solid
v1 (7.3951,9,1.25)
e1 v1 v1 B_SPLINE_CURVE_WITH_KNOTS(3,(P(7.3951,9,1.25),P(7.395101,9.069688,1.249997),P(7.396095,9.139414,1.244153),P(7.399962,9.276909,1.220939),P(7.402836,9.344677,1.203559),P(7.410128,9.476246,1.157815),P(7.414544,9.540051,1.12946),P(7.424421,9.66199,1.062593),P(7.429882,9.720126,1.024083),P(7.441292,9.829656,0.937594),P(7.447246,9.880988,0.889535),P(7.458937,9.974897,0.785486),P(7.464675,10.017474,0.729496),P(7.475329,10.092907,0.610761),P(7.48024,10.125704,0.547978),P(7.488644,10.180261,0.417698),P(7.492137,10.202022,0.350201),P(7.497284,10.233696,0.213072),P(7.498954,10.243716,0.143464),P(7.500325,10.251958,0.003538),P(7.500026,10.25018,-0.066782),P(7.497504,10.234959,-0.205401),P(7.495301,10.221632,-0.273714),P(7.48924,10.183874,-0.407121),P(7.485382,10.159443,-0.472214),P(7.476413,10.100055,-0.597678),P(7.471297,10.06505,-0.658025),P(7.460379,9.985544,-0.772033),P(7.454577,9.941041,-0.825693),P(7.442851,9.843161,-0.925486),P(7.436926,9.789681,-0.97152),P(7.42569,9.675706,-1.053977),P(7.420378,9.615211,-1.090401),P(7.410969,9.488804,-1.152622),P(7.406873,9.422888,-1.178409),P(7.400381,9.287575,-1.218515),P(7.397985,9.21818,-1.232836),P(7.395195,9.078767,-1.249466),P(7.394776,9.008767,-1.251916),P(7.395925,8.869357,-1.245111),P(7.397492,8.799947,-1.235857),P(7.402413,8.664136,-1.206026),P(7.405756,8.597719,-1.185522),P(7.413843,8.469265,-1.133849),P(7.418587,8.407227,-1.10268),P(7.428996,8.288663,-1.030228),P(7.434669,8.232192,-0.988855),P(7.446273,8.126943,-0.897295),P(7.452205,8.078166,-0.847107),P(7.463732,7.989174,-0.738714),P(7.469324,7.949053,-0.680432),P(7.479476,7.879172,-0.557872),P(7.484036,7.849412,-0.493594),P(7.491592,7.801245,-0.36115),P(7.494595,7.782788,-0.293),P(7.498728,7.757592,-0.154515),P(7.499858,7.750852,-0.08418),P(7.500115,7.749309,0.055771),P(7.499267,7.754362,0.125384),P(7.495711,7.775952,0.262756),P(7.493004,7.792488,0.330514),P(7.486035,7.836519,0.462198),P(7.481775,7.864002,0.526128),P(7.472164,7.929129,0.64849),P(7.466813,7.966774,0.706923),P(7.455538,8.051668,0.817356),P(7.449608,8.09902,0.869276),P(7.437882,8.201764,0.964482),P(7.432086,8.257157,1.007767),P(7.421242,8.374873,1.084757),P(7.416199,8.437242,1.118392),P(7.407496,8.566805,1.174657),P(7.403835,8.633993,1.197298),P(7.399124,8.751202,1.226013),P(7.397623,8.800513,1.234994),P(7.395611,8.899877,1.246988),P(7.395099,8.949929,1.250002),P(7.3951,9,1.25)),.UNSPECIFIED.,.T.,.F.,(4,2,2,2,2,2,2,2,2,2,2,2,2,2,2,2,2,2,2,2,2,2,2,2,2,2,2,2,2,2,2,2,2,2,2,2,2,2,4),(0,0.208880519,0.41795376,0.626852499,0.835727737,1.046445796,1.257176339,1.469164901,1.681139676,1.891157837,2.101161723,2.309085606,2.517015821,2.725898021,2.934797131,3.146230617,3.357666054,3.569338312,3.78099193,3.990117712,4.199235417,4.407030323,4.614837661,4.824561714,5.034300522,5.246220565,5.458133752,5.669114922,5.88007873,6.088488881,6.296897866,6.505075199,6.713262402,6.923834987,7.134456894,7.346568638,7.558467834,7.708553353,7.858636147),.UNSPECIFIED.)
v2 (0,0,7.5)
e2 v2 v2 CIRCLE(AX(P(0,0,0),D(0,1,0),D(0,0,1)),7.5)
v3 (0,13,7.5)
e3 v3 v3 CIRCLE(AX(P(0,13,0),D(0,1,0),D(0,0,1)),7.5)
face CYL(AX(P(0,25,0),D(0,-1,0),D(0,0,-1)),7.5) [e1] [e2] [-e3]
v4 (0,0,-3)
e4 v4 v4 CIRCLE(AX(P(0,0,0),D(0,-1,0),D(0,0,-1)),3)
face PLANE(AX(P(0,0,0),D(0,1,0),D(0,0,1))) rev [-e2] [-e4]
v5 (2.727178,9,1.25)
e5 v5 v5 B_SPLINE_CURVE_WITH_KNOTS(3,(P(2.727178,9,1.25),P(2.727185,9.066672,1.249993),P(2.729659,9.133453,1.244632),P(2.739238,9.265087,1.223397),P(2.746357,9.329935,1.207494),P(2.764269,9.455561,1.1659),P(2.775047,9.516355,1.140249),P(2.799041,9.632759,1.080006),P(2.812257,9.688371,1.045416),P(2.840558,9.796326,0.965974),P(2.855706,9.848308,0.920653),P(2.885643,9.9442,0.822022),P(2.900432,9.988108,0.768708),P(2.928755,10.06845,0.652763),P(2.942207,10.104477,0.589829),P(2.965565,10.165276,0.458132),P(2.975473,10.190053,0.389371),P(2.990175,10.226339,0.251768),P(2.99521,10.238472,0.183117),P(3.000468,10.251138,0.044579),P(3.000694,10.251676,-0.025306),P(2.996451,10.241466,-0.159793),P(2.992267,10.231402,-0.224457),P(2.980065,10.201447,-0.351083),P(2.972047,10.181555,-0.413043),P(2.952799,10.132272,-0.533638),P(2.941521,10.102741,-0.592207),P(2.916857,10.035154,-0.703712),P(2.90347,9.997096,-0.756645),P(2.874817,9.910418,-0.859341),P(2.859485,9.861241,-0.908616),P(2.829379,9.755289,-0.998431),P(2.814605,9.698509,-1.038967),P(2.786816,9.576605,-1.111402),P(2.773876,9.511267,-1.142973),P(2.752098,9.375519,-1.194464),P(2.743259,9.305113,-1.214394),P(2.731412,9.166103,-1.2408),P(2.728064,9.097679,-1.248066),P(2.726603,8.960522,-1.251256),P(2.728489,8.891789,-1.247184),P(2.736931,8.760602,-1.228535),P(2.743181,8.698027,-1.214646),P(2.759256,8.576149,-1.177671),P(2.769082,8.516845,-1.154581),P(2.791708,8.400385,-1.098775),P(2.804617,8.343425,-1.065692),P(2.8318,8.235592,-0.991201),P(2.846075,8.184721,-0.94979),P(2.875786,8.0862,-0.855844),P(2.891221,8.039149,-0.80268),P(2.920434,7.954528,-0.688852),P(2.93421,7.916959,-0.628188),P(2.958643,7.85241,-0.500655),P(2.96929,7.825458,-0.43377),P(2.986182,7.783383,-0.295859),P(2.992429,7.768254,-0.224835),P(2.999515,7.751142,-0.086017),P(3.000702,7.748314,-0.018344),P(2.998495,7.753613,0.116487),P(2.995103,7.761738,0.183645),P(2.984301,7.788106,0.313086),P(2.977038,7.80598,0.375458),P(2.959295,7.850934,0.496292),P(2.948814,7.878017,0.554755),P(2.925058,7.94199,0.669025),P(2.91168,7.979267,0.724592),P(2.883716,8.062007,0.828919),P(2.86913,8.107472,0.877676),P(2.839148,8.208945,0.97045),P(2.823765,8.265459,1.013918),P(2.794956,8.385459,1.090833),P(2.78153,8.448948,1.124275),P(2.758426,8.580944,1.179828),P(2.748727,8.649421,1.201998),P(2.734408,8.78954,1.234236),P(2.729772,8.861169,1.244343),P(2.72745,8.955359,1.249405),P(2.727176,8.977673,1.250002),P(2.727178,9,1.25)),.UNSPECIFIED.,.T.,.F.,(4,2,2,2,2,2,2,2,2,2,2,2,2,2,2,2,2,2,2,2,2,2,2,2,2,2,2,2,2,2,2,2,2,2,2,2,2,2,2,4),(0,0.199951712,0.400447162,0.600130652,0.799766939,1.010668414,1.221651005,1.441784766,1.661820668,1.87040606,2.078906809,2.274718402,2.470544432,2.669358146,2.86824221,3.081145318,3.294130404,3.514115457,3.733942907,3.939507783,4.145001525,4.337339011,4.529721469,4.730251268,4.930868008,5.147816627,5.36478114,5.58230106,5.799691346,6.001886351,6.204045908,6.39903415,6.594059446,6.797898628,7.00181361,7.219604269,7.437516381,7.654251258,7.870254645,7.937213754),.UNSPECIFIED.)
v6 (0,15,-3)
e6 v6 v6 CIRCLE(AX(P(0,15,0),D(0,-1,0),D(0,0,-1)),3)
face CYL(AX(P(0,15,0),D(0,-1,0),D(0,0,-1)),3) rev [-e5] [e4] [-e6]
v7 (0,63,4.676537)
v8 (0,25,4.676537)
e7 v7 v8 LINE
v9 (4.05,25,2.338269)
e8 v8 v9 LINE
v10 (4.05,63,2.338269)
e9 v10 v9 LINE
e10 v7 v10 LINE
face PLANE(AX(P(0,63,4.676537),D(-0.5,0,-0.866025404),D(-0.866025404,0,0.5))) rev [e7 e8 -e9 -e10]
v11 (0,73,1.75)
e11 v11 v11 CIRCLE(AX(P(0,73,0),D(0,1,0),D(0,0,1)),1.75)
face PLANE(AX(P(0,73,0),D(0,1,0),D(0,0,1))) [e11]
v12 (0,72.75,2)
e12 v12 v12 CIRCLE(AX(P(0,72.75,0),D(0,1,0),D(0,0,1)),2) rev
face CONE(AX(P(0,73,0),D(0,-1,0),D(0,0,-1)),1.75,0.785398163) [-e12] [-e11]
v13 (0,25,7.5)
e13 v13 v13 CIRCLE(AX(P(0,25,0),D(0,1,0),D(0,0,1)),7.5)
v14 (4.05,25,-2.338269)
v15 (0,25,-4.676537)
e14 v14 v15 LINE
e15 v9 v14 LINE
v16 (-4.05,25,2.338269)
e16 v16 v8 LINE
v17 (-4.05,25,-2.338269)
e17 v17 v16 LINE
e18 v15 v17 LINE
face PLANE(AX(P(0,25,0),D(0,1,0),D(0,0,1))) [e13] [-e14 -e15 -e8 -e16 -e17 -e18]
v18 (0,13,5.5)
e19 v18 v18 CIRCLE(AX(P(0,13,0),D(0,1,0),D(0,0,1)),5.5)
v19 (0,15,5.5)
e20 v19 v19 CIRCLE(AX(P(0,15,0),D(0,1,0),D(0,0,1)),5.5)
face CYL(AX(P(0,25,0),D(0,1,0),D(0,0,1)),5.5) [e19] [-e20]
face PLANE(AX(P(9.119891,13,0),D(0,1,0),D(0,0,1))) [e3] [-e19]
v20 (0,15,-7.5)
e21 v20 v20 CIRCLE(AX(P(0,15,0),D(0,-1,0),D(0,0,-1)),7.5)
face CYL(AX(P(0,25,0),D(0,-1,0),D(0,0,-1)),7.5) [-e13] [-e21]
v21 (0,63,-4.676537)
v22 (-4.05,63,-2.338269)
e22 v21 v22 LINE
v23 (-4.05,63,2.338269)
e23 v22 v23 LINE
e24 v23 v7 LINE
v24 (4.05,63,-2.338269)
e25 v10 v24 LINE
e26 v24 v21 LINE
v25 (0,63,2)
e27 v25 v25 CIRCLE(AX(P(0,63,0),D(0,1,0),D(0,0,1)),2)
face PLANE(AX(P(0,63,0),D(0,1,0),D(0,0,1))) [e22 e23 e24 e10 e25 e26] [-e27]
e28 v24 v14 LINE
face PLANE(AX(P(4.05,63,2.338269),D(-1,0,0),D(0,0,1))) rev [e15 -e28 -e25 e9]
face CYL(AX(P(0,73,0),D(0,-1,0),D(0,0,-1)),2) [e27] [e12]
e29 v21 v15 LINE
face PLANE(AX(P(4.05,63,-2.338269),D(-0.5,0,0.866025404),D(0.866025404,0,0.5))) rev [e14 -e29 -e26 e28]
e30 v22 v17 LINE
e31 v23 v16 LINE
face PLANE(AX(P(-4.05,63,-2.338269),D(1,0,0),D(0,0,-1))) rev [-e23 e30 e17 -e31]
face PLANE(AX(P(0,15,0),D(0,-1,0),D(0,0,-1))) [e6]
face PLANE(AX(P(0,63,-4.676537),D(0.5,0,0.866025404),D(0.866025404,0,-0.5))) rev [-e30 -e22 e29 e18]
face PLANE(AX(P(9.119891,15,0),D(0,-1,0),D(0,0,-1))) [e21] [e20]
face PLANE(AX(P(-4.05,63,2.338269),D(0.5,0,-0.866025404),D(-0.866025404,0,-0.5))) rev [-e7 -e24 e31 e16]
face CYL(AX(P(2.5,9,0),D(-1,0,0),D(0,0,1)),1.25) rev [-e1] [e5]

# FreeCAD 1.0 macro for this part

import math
import FreeCAD as App
import Part
import Sketcher
Q = App.Units.Quantity


def edges_at(feature, points):
    """Names of the edges that pass closest to the given points."""
    edges = feature.Shape.Edges
    near = lambda p: min(range(len(edges)), key=lambda i: edges[i].distToShape(Part.Vertex(*p))[0])
    return sorted({f"Edge{near(p) + 1}" for p in points})

doc = App.newDocument("Part")
body = doc.addObject("PartDesign::Body", "Body")

sketch1 = body.newObject("Sketcher::SketchObject", "Sketch")
sketch1.AttachmentSupport = (doc.getObject("XZ_Plane"), [""])
sketch1.MapMode = "FlatFace"
sketch1.addGeometry(Part.Circle(App.Vector(0, 0, 0), App.Vector(0, 0, 1), 8), False)
sketch1.addConstraint([
    Sketcher.Constraint("Coincident", 0, 3, -1, 1),
    Sketcher.Constraint("Diameter", 0, Q("15 mm")),
])
pad1 = body.newObject("PartDesign::Pad", "Pad")
pad1.Profile = sketch1
pad1.Length = 25
pad1.Reversed = True

sketch2 = body.newObject("Sketcher::SketchObject", "Sketch001")
sketch2.AttachmentSupport = (doc.getObject("XZ_Plane"), [""])
sketch2.MapMode = "FlatFace"
sketch2.AttachmentOffset = App.Placement(App.Vector(0, 0, -25), App.Rotation())
sketch2.addGeometry([
    Part.LineSegment(App.Vector(0, 4.7, 0), App.Vector(4, 2.3, 0)),
    Part.LineSegment(App.Vector(4, 2.3, 0), App.Vector(4, -2.3, 0)),
    Part.LineSegment(App.Vector(4, -2.3, 0), App.Vector(0, -4.7, 0)),
    Part.LineSegment(App.Vector(0, -4.7, 0), App.Vector(-4, -2.3, 0)),
    Part.LineSegment(App.Vector(-4, -2.3, 0), App.Vector(-4, 2.3, 0)),
    Part.LineSegment(App.Vector(-4, 2.3, 0), App.Vector(0, 4.7, 0)),
], False)
sketch2.addConstraint([
    Sketcher.Constraint("Coincident", 0, 2, 1, 1),
    Sketcher.Constraint("Coincident", 1, 2, 2, 1),
    Sketcher.Constraint("Coincident", 2, 2, 3, 1),
    Sketcher.Constraint("Coincident", 3, 2, 4, 1),
    Sketcher.Constraint("Coincident", 4, 2, 5, 1),
    Sketcher.Constraint("Coincident", 5, 2, 0, 1),
    Sketcher.Constraint("Vertical", 1),
    Sketcher.Constraint("Vertical", 4),
    Sketcher.Constraint("Symmetric", 0, 2, 3, 2, -1, 1),
    Sketcher.Constraint("Symmetric", 2, 2, 5, 2, -1, 1),
    Sketcher.Constraint("PointOnObject", 2, 2, -2),
    Sketcher.Constraint("Parallel", 2, 5),
    Sketcher.Constraint("Horizontal", 1, 2, 3, 2),
    Sketcher.Constraint("Angle", 0, Q("-29.999994 deg")),
    Sketcher.Constraint("DistanceX", 3, 2, 1, 2, Q("8.1 mm")),
    Sketcher.Constraint("DistanceY", 1, 2, 1, 1, Q("4.676538 mm")),
])
pad2 = body.newObject("PartDesign::Pad", "Pad001")
pad2.Profile = sketch2
pad2.Length = 38
pad2.Reversed = True

sketch3 = body.newObject("Sketcher::SketchObject", "Sketch002")
sketch3.AttachmentSupport = (doc.getObject("XZ_Plane"), [""])
sketch3.MapMode = "FlatFace"
sketch3.addGeometry([
    Part.LineSegment(App.Vector(2.5, -1.7, 0), App.Vector(2.5, 1.7, 0)),
    Part.ArcOfCircle(Part.Circle(App.Vector(0, 0, 0), App.Vector(0, 0, 1), 3), math.radians(34), math.radians(326)),
], False)
sketch3.addConstraint([
    Sketcher.Constraint("Coincident", 0, 1, 1, 2),
    Sketcher.Constraint("Coincident", 1, 1, 0, 2),
    Sketcher.Constraint("Vertical", 0),
    Sketcher.Constraint("Coincident", 1, 3, -1, 1),
    Sketcher.Constraint("Radius", 1, Q("3 mm")),
    Sketcher.Constraint("DistanceX", -1, 1, 0, 1, Q("2.5 mm")),
])
pocket1 = body.newObject("PartDesign::Pocket", "Pocket")
pocket1.Profile = sketch3
pocket1.Length = 15

sketch4 = body.newObject("Sketcher::SketchObject", "Sketch003")
sketch4.AttachmentSupport = (doc.getObject("XZ_Plane"), [""])
sketch4.MapMode = "FlatFace"
sketch4.addGeometry(Part.Circle(App.Vector(0, 0, 0), App.Vector(0, 0, 1), 3), False)
sketch4.addConstraint([
    Sketcher.Constraint("Coincident", 0, 3, -1, 1),
    Sketcher.Constraint("Diameter", 0, Q("6 mm")),
])
pocket2 = body.newObject("PartDesign::Pocket", "Pocket001")
pocket2.Profile = sketch4
pocket2.Length = 3

sketch5 = body.newObject("Sketcher::SketchObject", "Sketch004")
sketch5.AttachmentSupport = (doc.getObject("YZ_Plane"), [""])
sketch5.MapMode = "FlatFace"
sketch5.AttachmentOffset = App.Placement(App.Vector(0, 0, 2.5), App.Rotation())
sketch5.addGeometry(Part.Circle(App.Vector(9, 0, 0), App.Vector(0, 0, 1), 1.2), False)
sketch5.addConstraint([
    Sketcher.Constraint("PointOnObject", 0, 3, -1),
    Sketcher.Constraint("Diameter", 0, Q("2.5 mm")),
    Sketcher.Constraint("DistanceX", -1, 1, 0, 3, Q("9 mm")),
])
doc.recompute()
hole = body.newObject("PartDesign::Hole", "Hole")
hole.Profile = sketch5
hole.ThreadType = "None"
hole.Diameter = 2.5
hole.DepthType = "Dimension"
hole.Depth = 5
hole.DrillPoint = "Flat"
hole.Reversed = True

sketch6 = body.newObject("Sketcher::SketchObject", "Sketch005")
sketch6.AttachmentSupport = (doc.getObject("XZ_Plane"), [""])
sketch6.MapMode = "FlatFace"
sketch6.addGeometry(Part.Circle(App.Vector(0, 0, 0), App.Vector(0, 0, 1), 3), False)
sketch6.addConstraint([
    Sketcher.Constraint("Coincident", 0, 3, -1, 1),
    Sketcher.Constraint("Diameter", 0, Q("6 mm")),
])
pocket3 = body.newObject("PartDesign::Pocket", "Pocket002")
pocket3.Profile = sketch6
pocket3.Length = 15

sketch7 = body.newObject("Sketcher::SketchObject", "Sketch006")
sketch7.AttachmentSupport = (doc.getObject("XZ_Plane"), [""])
sketch7.MapMode = "FlatFace"
sketch7.AttachmentOffset = App.Placement(App.Vector(0, 0, -63), App.Rotation())
sketch7.addGeometry(Part.Circle(App.Vector(0, 0, 0), App.Vector(0, 0, 1), 2), False)
sketch7.addConstraint([
    Sketcher.Constraint("Coincident", 0, 3, -1, 1),
    Sketcher.Constraint("Diameter", 0, Q("4 mm")),
])
pad3 = body.newObject("PartDesign::Pad", "Pad002")
pad3.Profile = sketch7
pad3.Length = 10
pad3.Reversed = True
doc.recompute()

chamfer = body.newObject("PartDesign::Chamfer", "Chamfer")
chamfer.Base = (pad3, edges_at(pad3, [(0, 73, -2)]))
chamfer.Size = 0.25

sketch8 = body.newObject("Sketcher::SketchObject", "Sketch007")
sketch8.AttachmentSupport = (doc.getObject("XY_Plane"), [""])
sketch8.MapMode = "FlatFace"
sketch8.addGeometry([
    Part.LineSegment(App.Vector(5.5, 15, 0), App.Vector(5.5, 13, 0)),
    Part.LineSegment(App.Vector(5.5, 13, 0), App.Vector(9.1, 13, 0)),
    Part.LineSegment(App.Vector(9.1, 13, 0), App.Vector(9.1, 15, 0)),
    Part.LineSegment(App.Vector(9.1, 15, 0), App.Vector(5.5, 15, 0)),
], False)
sketch8.addConstraint([
    Sketcher.Constraint("Coincident", 0, 2, 1, 1),
    Sketcher.Constraint("Coincident", 1, 2, 2, 1),
    Sketcher.Constraint("Coincident", 2, 2, 3, 1),
    Sketcher.Constraint("Coincident", 3, 2, 0, 1),
    Sketcher.Constraint("Vertical", 0),
    Sketcher.Constraint("Horizontal", 1),
    Sketcher.Constraint("Vertical", 2),
    Sketcher.Constraint("Horizontal", 3),
    Sketcher.Constraint("DistanceY", 0, 2, 0, 1, Q("2 mm")),
    Sketcher.Constraint("DistanceY", -1, 1, 0, 2, Q("13 mm")),
    Sketcher.Constraint("DistanceX", -1, 1, 0, 2, Q("5.5 mm")),
    Sketcher.Constraint("DistanceX", 1, 1, 1, 2, Q("3.619891 mm")),
])
groove = body.newObject("PartDesign::Groove", "Groove")
groove.Profile = sketch8
groove.ReferenceAxis = (sketch8, ["V_Axis"])
groove.Angle = 360

doc.recompute()
